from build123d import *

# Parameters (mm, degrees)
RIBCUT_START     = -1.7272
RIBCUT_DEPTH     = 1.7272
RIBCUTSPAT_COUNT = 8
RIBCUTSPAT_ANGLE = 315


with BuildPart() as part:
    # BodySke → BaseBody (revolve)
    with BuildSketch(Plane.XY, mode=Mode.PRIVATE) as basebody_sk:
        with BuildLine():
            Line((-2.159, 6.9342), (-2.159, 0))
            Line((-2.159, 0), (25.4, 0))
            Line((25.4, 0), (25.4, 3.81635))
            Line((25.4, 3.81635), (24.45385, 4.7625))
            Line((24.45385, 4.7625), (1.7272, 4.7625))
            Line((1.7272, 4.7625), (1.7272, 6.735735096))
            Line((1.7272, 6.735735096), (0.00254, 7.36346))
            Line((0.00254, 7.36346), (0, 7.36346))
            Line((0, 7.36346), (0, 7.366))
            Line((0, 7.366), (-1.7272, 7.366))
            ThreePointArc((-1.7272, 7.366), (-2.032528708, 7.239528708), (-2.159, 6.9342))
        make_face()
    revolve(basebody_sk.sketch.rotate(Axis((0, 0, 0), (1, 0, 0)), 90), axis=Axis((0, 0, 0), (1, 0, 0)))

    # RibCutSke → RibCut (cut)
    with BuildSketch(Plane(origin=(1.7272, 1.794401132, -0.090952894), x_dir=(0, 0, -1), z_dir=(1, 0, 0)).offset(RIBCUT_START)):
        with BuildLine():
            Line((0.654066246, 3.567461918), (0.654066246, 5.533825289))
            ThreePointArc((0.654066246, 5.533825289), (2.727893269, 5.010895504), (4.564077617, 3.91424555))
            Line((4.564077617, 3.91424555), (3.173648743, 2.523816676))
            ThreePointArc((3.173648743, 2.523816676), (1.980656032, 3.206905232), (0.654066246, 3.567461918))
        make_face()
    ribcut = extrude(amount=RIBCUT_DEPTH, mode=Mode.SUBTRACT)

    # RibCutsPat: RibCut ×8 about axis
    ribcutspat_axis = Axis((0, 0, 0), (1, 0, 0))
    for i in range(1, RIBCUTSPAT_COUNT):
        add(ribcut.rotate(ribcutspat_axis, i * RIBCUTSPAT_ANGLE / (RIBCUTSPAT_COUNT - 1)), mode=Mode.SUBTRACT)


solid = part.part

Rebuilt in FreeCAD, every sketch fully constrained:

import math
import FreeCAD as App
import Part
import Sketcher
Q = App.Units.Quantity

doc = App.newDocument("Part")
body = doc.addObject("PartDesign::Body", "Body")

# Sketch on XY plane
sketch1 = body.newObject("Sketcher::SketchObject", "Sketch")
sketch1.AttachmentSupport = (doc.getObject("XY_Plane"), [""])
sketch1.MapMode = "FlatFace"
sketch1.addGeometry(Part.LineSegment(App.Vector(-2.159, 6.9342, 0), App.Vector(-2.159, 0, 0)), False)
sketch1.addGeometry(Part.LineSegment(App.Vector(-2.159, 0, 0), App.Vector(25.4, 0, 0)), False)
sketch1.addGeometry(Part.LineSegment(App.Vector(25.4, 0, 0), App.Vector(25.4, 3.8163, 0)), False)
sketch1.addGeometry(Part.LineSegment(App.Vector(25.4, 3.8163, 0), App.Vector(24.4538, 4.7625, 0)), False)
sketch1.addGeometry(Part.LineSegment(App.Vector(24.4538, 4.7625, 0), App.Vector(1.7272, 4.7625, 0)), False)
sketch1.addGeometry(Part.LineSegment(App.Vector(1.7272, 4.7625, 0), App.Vector(1.7272, 6.7357, 0)), False)
sketch1.addGeometry(Part.LineSegment(App.Vector(1.7272, 6.7357, 0), App.Vector(0.0025, 7.3635, 0)), False)
sketch1.addGeometry(Part.LineSegment(App.Vector(0.0025, 7.3635, 0), App.Vector(0, 7.3635, 0)), False)
sketch1.addGeometry(Part.LineSegment(App.Vector(0, 7.3635, 0), App.Vector(0, 7.366, 0)), False)
sketch1.addGeometry(Part.LineSegment(App.Vector(0, 7.366, 0), App.Vector(-1.7272, 7.366, 0)), False)
sketch1.addGeometry(Part.ArcOfCircle(Part.Circle(App.Vector(-1.7272, 6.9342, 0), App.Vector(0, 0, 1), 0.4318), math.radians(90), math.radians(180)), False)
sketch1.addConstraint(Sketcher.Constraint("Coincident", 0, 2, 1, 1))
sketch1.addConstraint(Sketcher.Constraint("Coincident", 1, 2, 2, 1))
sketch1.addConstraint(Sketcher.Constraint("Coincident", 2, 2, 3, 1))
sketch1.addConstraint(Sketcher.Constraint("Coincident", 3, 2, 4, 1))
sketch1.addConstraint(Sketcher.Constraint("Coincident", 4, 2, 5, 1))
sketch1.addConstraint(Sketcher.Constraint("Coincident", 5, 2, 6, 1))
sketch1.addConstraint(Sketcher.Constraint("Coincident", 6, 2, 7, 1))
sketch1.addConstraint(Sketcher.Constraint("Coincident", 7, 2, 8, 1))
sketch1.addConstraint(Sketcher.Constraint("Coincident", 8, 2, 9, 1))
sketch1.addConstraint(Sketcher.Constraint("Tangent", 9, 2, 10, 1))
sketch1.addConstraint(Sketcher.Constraint("Tangent", 10, 2, 0, 1))
sketch1.addConstraint(Sketcher.Constraint("Vertical", 0))
sketch1.addConstraint(Sketcher.Constraint("Horizontal", 1))
sketch1.addConstraint(Sketcher.Constraint("Vertical", 2))
sketch1.addConstraint(Sketcher.Constraint("Horizontal", 4))
sketch1.addConstraint(Sketcher.Constraint("Vertical", 5))
sketch1.addConstraint(Sketcher.Constraint("Horizontal", 7))
sketch1.addConstraint(Sketcher.Constraint("Vertical", 8))
sketch1.addConstraint(Sketcher.Constraint("Horizontal", 9))
sketch1.addConstraint(Sketcher.Constraint("PointOnObject", 0, 2, -1))
sketch1.addConstraint(Sketcher.Constraint("PointOnObject", 7, 2, -2))
sketch1.addConstraint(Sketcher.Constraint("Equal", 7, 8))
sketch1.addConstraint(Sketcher.Constraint("DistanceX", -1, 1, 1, 2, Q("1 in")))
sketch1.addConstraint(Sketcher.Constraint("Angle", 3, Q("135 deg")))
sketch1.addConstraint(Sketcher.Constraint("Angle", 6, Q("160 deg")))
sketch1.addConstraint(Sketcher.Constraint("Radius", 10, Q("0.017 in")))
sketch1.addConstraint(Sketcher.Constraint("DistanceX", 1, 1, 1, 2, Q("1.085 in")))
sketch1.addConstraint(Sketcher.Constraint("DistanceY", 0, 2, 0, 1, Q("0.273 in")))
sketch1.addConstraint(Sketcher.Constraint("DistanceX", 7, 2, 7, 1, Q("0.0001 in")))
sketch1.addConstraint(Sketcher.Constraint("DistanceY", -1, 1, 3, 2, Q("0.1875 in")))
sketch1.addConstraint(Sketcher.Constraint("DistanceX", -1, 1, 4, 2, Q("0.068 in")))
sketch1.addConstraint(Sketcher.Constraint("DistanceX", 4, 2, 4, 1, Q("22.72665 mm")))
revolution = body.newObject("PartDesign::Revolution", "Revolution")
revolution.Profile = sketch1
revolution.ReferenceAxis = (sketch1, ["H_Axis"])
revolution.Angle = 360

# Sketch on YZ plane
sketch2 = body.newObject("Sketcher::SketchObject", "Sketch001")
sketch2.AttachmentSupport = (doc.getObject("YZ_Plane"), [""])
sketch2.MapMode = "FlatFace"
sketch2.addGeometry(Part.LineSegment(App.Vector(7.3, -0.7, 0), App.Vector(5.4, -0.7, 0)), False)
sketch2.addGeometry(Part.ArcOfCircle(Part.Circle(App.Vector(0, 0, 0), App.Vector(0, 0, 1), 5.4), math.radians(-37), math.radians(-8)), False)
sketch2.addGeometry(Part.LineSegment(App.Vector(4.3, -3.3, 0), App.Vector(5.7, -4.7, 0)), False)
sketch2.addGeometry(Part.ArcOfCircle(Part.Circle(App.Vector(0, 0, 0), App.Vector(0, 0, 1), 7.4), math.radians(-39), math.radians(-6)), False)
sketch2.addConstraint(Sketcher.Constraint("Coincident", 0, 2, 1, 2))
sketch2.addConstraint(Sketcher.Constraint("Coincident", 1, 1, 2, 1))
sketch2.addConstraint(Sketcher.Constraint("Coincident", 2, 2, 3, 1))
sketch2.addConstraint(Sketcher.Constraint("Coincident", 3, 2, 0, 1))
sketch2.addConstraint(Sketcher.Constraint("Horizontal", 0))
sketch2.addConstraint(Sketcher.Constraint("Coincident", 1, 3, -1, 1))
sketch2.addConstraint(Sketcher.Constraint("Coincident", 3, 3, -1, 1))
sketch2.addConstraint(Sketcher.Constraint("Radius", 3, Q("0.29 in")))
sketch2.addConstraint(Sketcher.Constraint("Angle", 2, Q("-45 deg")))
sketch2.addConstraint(Sketcher.Constraint("Radius", 1, Q("5.413375 mm")))
sketch2.addConstraint(Sketcher.Constraint("DistanceY", 1, 1, -1, 1, Q("3.264602 mm")))
sketch2.addConstraint(Sketcher.Constraint("DistanceX", 0, 2, 0, 1, Q("1.966363 mm")))
pocket1 = body.newObject("PartDesign::Pocket", "Pocket")
pocket1.Profile = sketch2
pocket1.Length = Q("0.068 in")
pocket1.Reversed = True
doc.recompute()

polarpattern = body.newObject("PartDesign::PolarPattern", "PolarPattern")
polarpattern.Originals = [pocket1]
polarpattern.Axis = (doc.getObject("X_Axis"), [""])
polarpattern.Angle = 360
polarpattern.Occurrences = 8
body.Tip = polarpattern

doc.recompute()
